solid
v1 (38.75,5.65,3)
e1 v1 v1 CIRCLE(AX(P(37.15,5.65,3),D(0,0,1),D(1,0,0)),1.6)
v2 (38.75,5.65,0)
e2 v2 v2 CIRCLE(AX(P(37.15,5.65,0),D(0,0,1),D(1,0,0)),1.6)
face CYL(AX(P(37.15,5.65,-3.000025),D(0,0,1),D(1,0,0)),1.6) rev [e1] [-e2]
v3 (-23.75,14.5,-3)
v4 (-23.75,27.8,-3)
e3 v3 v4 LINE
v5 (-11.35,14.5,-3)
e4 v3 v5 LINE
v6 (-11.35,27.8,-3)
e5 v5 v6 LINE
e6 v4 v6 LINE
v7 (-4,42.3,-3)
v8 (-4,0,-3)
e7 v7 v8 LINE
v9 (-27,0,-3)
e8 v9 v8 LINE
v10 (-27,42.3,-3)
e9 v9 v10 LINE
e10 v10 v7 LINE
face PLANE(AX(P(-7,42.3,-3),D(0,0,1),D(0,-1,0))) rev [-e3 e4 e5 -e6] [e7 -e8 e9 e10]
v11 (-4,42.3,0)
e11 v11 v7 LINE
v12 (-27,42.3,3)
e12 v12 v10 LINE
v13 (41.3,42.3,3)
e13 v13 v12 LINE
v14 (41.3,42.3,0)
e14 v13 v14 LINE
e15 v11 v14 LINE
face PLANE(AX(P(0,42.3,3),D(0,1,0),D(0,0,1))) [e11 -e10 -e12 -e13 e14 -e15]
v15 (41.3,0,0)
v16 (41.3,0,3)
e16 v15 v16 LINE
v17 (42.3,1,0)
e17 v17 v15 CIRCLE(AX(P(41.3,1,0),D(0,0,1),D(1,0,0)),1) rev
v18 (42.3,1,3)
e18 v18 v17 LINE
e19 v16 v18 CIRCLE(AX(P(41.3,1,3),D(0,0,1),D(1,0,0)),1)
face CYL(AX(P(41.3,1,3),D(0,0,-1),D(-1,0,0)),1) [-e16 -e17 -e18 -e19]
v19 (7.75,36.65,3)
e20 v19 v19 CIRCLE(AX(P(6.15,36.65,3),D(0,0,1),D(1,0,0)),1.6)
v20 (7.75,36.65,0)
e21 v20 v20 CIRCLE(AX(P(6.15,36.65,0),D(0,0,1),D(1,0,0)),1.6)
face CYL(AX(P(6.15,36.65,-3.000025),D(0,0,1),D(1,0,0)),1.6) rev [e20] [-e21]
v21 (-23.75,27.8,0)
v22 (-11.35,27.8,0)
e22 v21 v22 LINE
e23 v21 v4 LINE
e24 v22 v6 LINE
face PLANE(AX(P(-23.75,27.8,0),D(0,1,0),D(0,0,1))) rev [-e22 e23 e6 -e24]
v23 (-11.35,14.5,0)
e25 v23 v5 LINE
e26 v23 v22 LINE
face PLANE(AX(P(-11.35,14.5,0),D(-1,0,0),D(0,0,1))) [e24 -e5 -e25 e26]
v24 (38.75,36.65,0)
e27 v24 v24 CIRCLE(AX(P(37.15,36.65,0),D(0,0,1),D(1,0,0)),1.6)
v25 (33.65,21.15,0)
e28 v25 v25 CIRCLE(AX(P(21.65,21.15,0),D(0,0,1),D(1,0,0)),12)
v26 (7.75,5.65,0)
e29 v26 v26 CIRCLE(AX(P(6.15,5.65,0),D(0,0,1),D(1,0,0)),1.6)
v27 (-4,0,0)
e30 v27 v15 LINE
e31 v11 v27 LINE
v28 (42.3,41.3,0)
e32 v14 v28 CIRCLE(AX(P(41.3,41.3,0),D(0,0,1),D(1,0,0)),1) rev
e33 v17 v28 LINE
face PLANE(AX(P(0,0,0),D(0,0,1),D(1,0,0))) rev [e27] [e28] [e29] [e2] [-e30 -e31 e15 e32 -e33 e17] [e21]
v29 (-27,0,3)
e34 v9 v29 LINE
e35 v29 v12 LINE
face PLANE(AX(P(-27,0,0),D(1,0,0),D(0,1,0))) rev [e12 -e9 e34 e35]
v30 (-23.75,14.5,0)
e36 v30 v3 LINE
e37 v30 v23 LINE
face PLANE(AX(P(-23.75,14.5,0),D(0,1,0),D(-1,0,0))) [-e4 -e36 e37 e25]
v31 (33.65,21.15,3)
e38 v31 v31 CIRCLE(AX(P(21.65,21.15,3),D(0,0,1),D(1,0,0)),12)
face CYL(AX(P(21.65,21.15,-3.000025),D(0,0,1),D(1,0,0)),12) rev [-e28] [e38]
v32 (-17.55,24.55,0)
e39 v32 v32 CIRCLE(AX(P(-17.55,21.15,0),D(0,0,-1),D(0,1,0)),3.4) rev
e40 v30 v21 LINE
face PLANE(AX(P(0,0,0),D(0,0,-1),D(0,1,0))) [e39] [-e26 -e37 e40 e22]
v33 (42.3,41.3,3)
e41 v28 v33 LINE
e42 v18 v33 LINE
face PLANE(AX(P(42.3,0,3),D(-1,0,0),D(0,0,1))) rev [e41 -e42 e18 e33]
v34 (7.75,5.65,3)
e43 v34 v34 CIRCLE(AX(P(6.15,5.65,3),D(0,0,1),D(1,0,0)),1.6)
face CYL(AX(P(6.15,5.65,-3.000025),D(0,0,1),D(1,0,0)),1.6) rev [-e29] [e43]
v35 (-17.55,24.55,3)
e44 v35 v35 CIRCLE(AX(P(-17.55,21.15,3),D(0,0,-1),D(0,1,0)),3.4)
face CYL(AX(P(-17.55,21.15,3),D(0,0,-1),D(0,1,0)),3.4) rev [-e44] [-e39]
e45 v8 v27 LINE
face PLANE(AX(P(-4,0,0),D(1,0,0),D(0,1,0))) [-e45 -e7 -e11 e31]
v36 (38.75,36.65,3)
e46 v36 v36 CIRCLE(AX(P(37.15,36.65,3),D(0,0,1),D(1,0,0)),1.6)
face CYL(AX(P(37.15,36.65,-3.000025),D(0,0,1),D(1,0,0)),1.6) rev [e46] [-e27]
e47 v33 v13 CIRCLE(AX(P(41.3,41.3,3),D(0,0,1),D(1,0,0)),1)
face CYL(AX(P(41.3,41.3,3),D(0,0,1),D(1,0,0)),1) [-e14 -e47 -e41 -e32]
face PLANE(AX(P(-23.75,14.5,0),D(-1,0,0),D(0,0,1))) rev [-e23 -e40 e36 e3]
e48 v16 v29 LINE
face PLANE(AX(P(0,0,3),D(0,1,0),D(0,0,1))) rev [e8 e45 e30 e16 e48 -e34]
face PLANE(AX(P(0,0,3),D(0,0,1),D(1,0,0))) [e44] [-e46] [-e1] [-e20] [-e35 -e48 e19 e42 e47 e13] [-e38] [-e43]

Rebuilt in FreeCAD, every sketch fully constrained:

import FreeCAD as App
import Part
import Sketcher

V = App.Vector
Q = App.Units.Quantity


def edges_at(feature, points):
    """Names of the edges that pass closest to the given points."""
    edges = feature.Shape.Edges
    near = lambda p: min(range(len(edges)), key=lambda i: edges[i].distToShape(Part.Vertex(*p))[0])
    return sorted({f"Edge{near(p) + 1}" for p in points})

doc = App.newDocument("Part")
body = doc.addObject("PartDesign::Body", "Body")

# Sketch on XY plane
sketch1 = body.newObject("Sketcher::SketchObject", "Sketch")
sketch1.AttachmentSupport = (doc.getObject("XY_Plane"), [""])
sketch1.MapMode = "FlatFace"
sketch1.addGeometry([
    Part.LineSegment(V(42, 0, 0), V(42, 42, 0)),
    Part.LineSegment(V(42, 42, 0), V(-4, 42, 0)),
    Part.LineSegment(V(-4, 42, 0), V(-4, 0, 0)),
    Part.LineSegment(V(-4, 0, 0), V(42, 0, 0)),
], False)
sketch1.addConstraint([
    Sketcher.Constraint("Coincident", 0, 2, 1, 1),
    Sketcher.Constraint("Coincident", 1, 2, 2, 1),
    Sketcher.Constraint("Coincident", 2, 2, 3, 1),
    Sketcher.Constraint("Coincident", 3, 2, 0, 1),
    Sketcher.Constraint("Vertical", 0),
    Sketcher.Constraint("Horizontal", 1),
    Sketcher.Constraint("Vertical", 2),
    Sketcher.Constraint("Horizontal", 3),
    Sketcher.Constraint("PointOnObject", 2, 2, -1),
    Sketcher.Constraint("DistanceX", 1, 2, 1, 1, Q("46.3 mm")),
    Sketcher.Constraint("DistanceY", 0, 1, 0, 2, Q("42.3 mm")),
    Sketcher.Constraint("DistanceX", 1, 2, -1, 1, Q("4 mm")),
])
pad1 = body.newObject("PartDesign::Pad", "Pad")
pad1.Profile = sketch1
pad1.Length = 3

# Sketch on YZ plane
sketch2 = body.newObject("Sketcher::SketchObject", "Sketch001")
sketch2.AttachmentSupport = (doc.getObject("YZ_Plane"), [""])
sketch2.MapMode = "FlatFace"
sketch2.AttachmentOffset = App.Placement(V(0, 0, -4), App.Rotation())
sketch2.addGeometry([
    Part.LineSegment(V(42, -3, 0), V(0, -3, 0)),
    Part.LineSegment(V(0, -3, 0), V(0, 3, 0)),
    Part.LineSegment(V(0, 3, 0), V(42, 3, 0)),
    Part.LineSegment(V(42, 3, 0), V(42, -3, 0)),
], False)
sketch2.addConstraint([
    Sketcher.Constraint("Coincident", 0, 2, 1, 1),
    Sketcher.Constraint("Coincident", 1, 2, 2, 1),
    Sketcher.Constraint("Coincident", 2, 2, 3, 1),
    Sketcher.Constraint("Coincident", 3, 2, 0, 1),
    Sketcher.Constraint("Horizontal", 0),
    Sketcher.Constraint("Vertical", 1),
    Sketcher.Constraint("Horizontal", 2),
    Sketcher.Constraint("Vertical", 3),
    Sketcher.Constraint("Symmetric", 0, 2, 1, 2, -1, 1),
    Sketcher.Constraint("DistanceY", 1, 1, 1, 2, Q("6 mm")),
    Sketcher.Constraint("DistanceX", 0, 2, 0, 1, Q("42.3 mm")),
])
pad2 = body.newObject("PartDesign::Pad", "Pad001")
pad2.Profile = sketch2
pad2.Length = 3
pad2.Reversed = True

# Sketch on XY plane
sketch3 = body.newObject("Sketcher::SketchObject", "Sketch002")
sketch3.AttachmentSupport = (doc.getObject("XY_Plane"), [""])
sketch3.MapMode = "FlatFace"
sketch3.AttachmentOffset = App.Placement(V(0, 0, 3), App.Rotation())
sketch3.addGeometry([
    Part.Circle(V(21.6, 21.1, 0), V(0, 0, 1), 12),  # 0
    Part.Circle(V(6.2, 36.6, 0), V(0, 0, 1), 1.6),  # 1
    Part.Circle(V(37.1, 36.6, 0), V(0, 0, 1), 1.6),  # 2
    Part.Circle(V(37.1, 5.7, 0), V(0, 0, 1), 1.6),  # 3
    Part.Circle(V(6.2, 5.7, 0), V(0, 0, 1), 1.6),  # 4
], False)
sketch3.addConstraint([
    Sketcher.Constraint("Equal", 1, 2),
    Sketcher.Constraint("Equal", 2, 3),
    Sketcher.Constraint("Equal", 3, 4),
    Sketcher.Constraint("Horizontal", 1, 3, 2, 3),
    Sketcher.Constraint("Horizontal", 3, 3, 4, 3),
    Sketcher.Constraint("Vertical", 2, 3, 3, 3),
    Sketcher.Constraint("Vertical", 1, 3, 4, 3),
    Sketcher.Constraint("Diameter", 0, Q("24 mm")),
    Sketcher.Constraint("Diameter", 1, Q("3.2 mm")),
    Sketcher.Constraint("DistanceX", 1, 3, 2, 3, Q("31 mm")),
    Sketcher.Constraint("DistanceY", 3, 3, 2, 3, Q("31 mm")),
    Sketcher.Constraint("DistanceX", 1, 3, 0, 3, Q("15.5 mm")),
    Sketcher.Constraint("DistanceY", 0, 3, 1, 3, Q("15.5 mm")),
    Sketcher.Constraint("DistanceX", -1, 1, 0, 3, Q("21.65 mm")),
    Sketcher.Constraint("DistanceY", -1, 1, 0, 3, Q("21.15 mm")),
])
pocket1 = body.newObject("PartDesign::Pocket", "Pocket")
pocket1.Profile = sketch3
pocket1.Type = "ThroughAll"

# Sketch on YZ plane
sketch4 = body.newObject("Sketcher::SketchObject", "Sketch003")
sketch4.AttachmentSupport = (doc.getObject("YZ_Plane"), [""])
sketch4.MapMode = "FlatFace"
sketch4.AttachmentOffset = App.Placement(V(0, 0, -7), App.Rotation())
sketch4.addGeometry([
    Part.LineSegment(V(42.3, 0, 0), V(0, 0, 0)),
    Part.LineSegment(V(0, 0, 0), V(0, 3, 0)),
    Part.LineSegment(V(0, 3, 0), V(42.3, 3, 0)),
    Part.LineSegment(V(42.3, 3, 0), V(42.3, 0, 0)),
], False)
sketch4.addConstraint([
    Sketcher.Constraint("Coincident", 0, 2, 1, 1),
    Sketcher.Constraint("Coincident", 1, 2, 2, 1),
    Sketcher.Constraint("Coincident", 2, 2, 3, 1),
    Sketcher.Constraint("Coincident", 3, 2, 0, 1),
    Sketcher.Constraint("Horizontal", 0),
    Sketcher.Constraint("Vertical", 1),
    Sketcher.Constraint("Horizontal", 2),
    Sketcher.Constraint("Vertical", 3),
    Sketcher.Constraint("Coincident", 0, 2, -1, 1),
    Sketcher.Constraint("DistanceY", 1, 1, 1, 2, Q("3 mm")),
    Sketcher.Constraint("DistanceX", 0, 2, 0, 1, Q("42.3 mm")),
])
pad3 = body.newObject("PartDesign::Pad", "Pad002")
pad3.Profile = sketch4
pad3.Length = 20
pad3.Reversed = True
doc.recompute()

fillet = body.newObject("PartDesign::Fillet", "Fillet")
fillet.Base = (pad3, edges_at(pad3, [(42.3, 0, 1.5), (42.3, 42.3, 1.5)]))
fillet.Radius = 1

# Sketch on XY plane
sketch5 = body.newObject("Sketcher::SketchObject", "Sketch004")
sketch5.AttachmentSupport = (doc.getObject("XY_Plane"), [""])
sketch5.MapMode = "FlatFace"
sketch5.addGeometry(Part.Circle(V(-17.6, 21.1, 0), V(0, 0, 1), 3.4), False)
sketch5.addConstraint([
    Sketcher.Constraint("Diameter", 0, Q("6.8 mm")),
    Sketcher.Constraint("DistanceX", 0, 3, -1, 1, Q("17.55 mm")),
    Sketcher.Constraint("DistanceY", -1, 1, 0, 3, Q("21.15 mm")),
])
pocket2 = body.newObject("PartDesign::Pocket", "Pocket001")
pocket2.Profile = sketch5
pocket2.Type = "ThroughAll"
pocket2.Reversed = True

# Sketch on XY plane
sketch6 = body.newObject("Sketcher::SketchObject", "Sketch005")
sketch6.AttachmentSupport = (doc.getObject("XY_Plane"), [""])
sketch6.MapMode = "FlatFace"
sketch6.addGeometry([
    Part.LineSegment(V(-7, 42, 0), V(-7, 0, 0)),
    Part.LineSegment(V(-7, 0, 0), V(-27, 0, 0)),
    Part.LineSegment(V(-27, 0, 0), V(-27, 42, 0)),
    Part.LineSegment(V(-27, 42, 0), V(-7, 42, 0)),
], False)
sketch6.addConstraint([
    Sketcher.Constraint("Coincident", 0, 2, 1, 1),
    Sketcher.Constraint("Coincident", 1, 2, 2, 1),
    Sketcher.Constraint("Coincident", 2, 2, 3, 1),
    Sketcher.Constraint("Coincident", 3, 2, 0, 1),
    Sketcher.Constraint("Vertical", 0),
    Sketcher.Constraint("Horizontal", 1),
    Sketcher.Constraint("Vertical", 2),
    Sketcher.Constraint("Horizontal", 3),
    Sketcher.Constraint("PointOnObject", 0, 2, -1),
    Sketcher.Constraint("DistanceX", 1, 2, 1, 1, Q("20 mm")),
    Sketcher.Constraint("DistanceY", 0, 2, 0, 1, Q("42.3 mm")),
    Sketcher.Constraint("DistanceX", 0, 2, -1, 1, Q("7 mm")),
])
pad4 = body.newObject("PartDesign::Pad", "Pad003")
pad4.Profile = sketch6
pad4.Length = 3
pad4.Reversed = True

# Sketch on XY plane
sketch7 = body.newObject("Sketcher::SketchObject", "Sketch006")
sketch7.AttachmentSupport = (doc.getObject("XY_Plane"), [""])
sketch7.MapMode = "FlatFace"
sketch7.AttachmentOffset = App.Placement(V(0, 0, -3), App.Rotation())
sketch7.addGeometry([
    Part.LineSegment(V(-11, 28, 0), V(-11, 14, 0)),
    Part.LineSegment(V(-11, 14, 0), V(-24, 14, 0)),
    Part.LineSegment(V(-24, 14, 0), V(-24, 28, 0)),
    Part.LineSegment(V(-24, 28, 0), V(-11, 28, 0)),
], False)
sketch7.addConstraint([
    Sketcher.Constraint("Coincident", 0, 2, 1, 1),
    Sketcher.Constraint("Coincident", 1, 2, 2, 1),
    Sketcher.Constraint("Coincident", 2, 2, 3, 1),
    Sketcher.Constraint("Coincident", 3, 2, 0, 1),
    Sketcher.Constraint("Vertical", 0),
    Sketcher.Constraint("Horizontal", 1),
    Sketcher.Constraint("Vertical", 2),
    Sketcher.Constraint("Horizontal", 3),
    Sketcher.Constraint("DistanceX", 1, 2, 1, 1, Q("12.4 mm")),
    Sketcher.Constraint("DistanceY", 0, 2, 0, 1, Q("13.3 mm")),
    Sketcher.Constraint("DistanceY", -1, 1, 0, 2, Q("14.5 mm")),
    Sketcher.Constraint("DistanceX", 0, 2, -1, 1, Q("11.35 mm")),
])
pocket3 = body.newObject("PartDesign::Pocket", "Pocket002")
pocket3.Profile = sketch7
pocket3.Length = 3
pocket3.Reversed = True

doc.recompute()
